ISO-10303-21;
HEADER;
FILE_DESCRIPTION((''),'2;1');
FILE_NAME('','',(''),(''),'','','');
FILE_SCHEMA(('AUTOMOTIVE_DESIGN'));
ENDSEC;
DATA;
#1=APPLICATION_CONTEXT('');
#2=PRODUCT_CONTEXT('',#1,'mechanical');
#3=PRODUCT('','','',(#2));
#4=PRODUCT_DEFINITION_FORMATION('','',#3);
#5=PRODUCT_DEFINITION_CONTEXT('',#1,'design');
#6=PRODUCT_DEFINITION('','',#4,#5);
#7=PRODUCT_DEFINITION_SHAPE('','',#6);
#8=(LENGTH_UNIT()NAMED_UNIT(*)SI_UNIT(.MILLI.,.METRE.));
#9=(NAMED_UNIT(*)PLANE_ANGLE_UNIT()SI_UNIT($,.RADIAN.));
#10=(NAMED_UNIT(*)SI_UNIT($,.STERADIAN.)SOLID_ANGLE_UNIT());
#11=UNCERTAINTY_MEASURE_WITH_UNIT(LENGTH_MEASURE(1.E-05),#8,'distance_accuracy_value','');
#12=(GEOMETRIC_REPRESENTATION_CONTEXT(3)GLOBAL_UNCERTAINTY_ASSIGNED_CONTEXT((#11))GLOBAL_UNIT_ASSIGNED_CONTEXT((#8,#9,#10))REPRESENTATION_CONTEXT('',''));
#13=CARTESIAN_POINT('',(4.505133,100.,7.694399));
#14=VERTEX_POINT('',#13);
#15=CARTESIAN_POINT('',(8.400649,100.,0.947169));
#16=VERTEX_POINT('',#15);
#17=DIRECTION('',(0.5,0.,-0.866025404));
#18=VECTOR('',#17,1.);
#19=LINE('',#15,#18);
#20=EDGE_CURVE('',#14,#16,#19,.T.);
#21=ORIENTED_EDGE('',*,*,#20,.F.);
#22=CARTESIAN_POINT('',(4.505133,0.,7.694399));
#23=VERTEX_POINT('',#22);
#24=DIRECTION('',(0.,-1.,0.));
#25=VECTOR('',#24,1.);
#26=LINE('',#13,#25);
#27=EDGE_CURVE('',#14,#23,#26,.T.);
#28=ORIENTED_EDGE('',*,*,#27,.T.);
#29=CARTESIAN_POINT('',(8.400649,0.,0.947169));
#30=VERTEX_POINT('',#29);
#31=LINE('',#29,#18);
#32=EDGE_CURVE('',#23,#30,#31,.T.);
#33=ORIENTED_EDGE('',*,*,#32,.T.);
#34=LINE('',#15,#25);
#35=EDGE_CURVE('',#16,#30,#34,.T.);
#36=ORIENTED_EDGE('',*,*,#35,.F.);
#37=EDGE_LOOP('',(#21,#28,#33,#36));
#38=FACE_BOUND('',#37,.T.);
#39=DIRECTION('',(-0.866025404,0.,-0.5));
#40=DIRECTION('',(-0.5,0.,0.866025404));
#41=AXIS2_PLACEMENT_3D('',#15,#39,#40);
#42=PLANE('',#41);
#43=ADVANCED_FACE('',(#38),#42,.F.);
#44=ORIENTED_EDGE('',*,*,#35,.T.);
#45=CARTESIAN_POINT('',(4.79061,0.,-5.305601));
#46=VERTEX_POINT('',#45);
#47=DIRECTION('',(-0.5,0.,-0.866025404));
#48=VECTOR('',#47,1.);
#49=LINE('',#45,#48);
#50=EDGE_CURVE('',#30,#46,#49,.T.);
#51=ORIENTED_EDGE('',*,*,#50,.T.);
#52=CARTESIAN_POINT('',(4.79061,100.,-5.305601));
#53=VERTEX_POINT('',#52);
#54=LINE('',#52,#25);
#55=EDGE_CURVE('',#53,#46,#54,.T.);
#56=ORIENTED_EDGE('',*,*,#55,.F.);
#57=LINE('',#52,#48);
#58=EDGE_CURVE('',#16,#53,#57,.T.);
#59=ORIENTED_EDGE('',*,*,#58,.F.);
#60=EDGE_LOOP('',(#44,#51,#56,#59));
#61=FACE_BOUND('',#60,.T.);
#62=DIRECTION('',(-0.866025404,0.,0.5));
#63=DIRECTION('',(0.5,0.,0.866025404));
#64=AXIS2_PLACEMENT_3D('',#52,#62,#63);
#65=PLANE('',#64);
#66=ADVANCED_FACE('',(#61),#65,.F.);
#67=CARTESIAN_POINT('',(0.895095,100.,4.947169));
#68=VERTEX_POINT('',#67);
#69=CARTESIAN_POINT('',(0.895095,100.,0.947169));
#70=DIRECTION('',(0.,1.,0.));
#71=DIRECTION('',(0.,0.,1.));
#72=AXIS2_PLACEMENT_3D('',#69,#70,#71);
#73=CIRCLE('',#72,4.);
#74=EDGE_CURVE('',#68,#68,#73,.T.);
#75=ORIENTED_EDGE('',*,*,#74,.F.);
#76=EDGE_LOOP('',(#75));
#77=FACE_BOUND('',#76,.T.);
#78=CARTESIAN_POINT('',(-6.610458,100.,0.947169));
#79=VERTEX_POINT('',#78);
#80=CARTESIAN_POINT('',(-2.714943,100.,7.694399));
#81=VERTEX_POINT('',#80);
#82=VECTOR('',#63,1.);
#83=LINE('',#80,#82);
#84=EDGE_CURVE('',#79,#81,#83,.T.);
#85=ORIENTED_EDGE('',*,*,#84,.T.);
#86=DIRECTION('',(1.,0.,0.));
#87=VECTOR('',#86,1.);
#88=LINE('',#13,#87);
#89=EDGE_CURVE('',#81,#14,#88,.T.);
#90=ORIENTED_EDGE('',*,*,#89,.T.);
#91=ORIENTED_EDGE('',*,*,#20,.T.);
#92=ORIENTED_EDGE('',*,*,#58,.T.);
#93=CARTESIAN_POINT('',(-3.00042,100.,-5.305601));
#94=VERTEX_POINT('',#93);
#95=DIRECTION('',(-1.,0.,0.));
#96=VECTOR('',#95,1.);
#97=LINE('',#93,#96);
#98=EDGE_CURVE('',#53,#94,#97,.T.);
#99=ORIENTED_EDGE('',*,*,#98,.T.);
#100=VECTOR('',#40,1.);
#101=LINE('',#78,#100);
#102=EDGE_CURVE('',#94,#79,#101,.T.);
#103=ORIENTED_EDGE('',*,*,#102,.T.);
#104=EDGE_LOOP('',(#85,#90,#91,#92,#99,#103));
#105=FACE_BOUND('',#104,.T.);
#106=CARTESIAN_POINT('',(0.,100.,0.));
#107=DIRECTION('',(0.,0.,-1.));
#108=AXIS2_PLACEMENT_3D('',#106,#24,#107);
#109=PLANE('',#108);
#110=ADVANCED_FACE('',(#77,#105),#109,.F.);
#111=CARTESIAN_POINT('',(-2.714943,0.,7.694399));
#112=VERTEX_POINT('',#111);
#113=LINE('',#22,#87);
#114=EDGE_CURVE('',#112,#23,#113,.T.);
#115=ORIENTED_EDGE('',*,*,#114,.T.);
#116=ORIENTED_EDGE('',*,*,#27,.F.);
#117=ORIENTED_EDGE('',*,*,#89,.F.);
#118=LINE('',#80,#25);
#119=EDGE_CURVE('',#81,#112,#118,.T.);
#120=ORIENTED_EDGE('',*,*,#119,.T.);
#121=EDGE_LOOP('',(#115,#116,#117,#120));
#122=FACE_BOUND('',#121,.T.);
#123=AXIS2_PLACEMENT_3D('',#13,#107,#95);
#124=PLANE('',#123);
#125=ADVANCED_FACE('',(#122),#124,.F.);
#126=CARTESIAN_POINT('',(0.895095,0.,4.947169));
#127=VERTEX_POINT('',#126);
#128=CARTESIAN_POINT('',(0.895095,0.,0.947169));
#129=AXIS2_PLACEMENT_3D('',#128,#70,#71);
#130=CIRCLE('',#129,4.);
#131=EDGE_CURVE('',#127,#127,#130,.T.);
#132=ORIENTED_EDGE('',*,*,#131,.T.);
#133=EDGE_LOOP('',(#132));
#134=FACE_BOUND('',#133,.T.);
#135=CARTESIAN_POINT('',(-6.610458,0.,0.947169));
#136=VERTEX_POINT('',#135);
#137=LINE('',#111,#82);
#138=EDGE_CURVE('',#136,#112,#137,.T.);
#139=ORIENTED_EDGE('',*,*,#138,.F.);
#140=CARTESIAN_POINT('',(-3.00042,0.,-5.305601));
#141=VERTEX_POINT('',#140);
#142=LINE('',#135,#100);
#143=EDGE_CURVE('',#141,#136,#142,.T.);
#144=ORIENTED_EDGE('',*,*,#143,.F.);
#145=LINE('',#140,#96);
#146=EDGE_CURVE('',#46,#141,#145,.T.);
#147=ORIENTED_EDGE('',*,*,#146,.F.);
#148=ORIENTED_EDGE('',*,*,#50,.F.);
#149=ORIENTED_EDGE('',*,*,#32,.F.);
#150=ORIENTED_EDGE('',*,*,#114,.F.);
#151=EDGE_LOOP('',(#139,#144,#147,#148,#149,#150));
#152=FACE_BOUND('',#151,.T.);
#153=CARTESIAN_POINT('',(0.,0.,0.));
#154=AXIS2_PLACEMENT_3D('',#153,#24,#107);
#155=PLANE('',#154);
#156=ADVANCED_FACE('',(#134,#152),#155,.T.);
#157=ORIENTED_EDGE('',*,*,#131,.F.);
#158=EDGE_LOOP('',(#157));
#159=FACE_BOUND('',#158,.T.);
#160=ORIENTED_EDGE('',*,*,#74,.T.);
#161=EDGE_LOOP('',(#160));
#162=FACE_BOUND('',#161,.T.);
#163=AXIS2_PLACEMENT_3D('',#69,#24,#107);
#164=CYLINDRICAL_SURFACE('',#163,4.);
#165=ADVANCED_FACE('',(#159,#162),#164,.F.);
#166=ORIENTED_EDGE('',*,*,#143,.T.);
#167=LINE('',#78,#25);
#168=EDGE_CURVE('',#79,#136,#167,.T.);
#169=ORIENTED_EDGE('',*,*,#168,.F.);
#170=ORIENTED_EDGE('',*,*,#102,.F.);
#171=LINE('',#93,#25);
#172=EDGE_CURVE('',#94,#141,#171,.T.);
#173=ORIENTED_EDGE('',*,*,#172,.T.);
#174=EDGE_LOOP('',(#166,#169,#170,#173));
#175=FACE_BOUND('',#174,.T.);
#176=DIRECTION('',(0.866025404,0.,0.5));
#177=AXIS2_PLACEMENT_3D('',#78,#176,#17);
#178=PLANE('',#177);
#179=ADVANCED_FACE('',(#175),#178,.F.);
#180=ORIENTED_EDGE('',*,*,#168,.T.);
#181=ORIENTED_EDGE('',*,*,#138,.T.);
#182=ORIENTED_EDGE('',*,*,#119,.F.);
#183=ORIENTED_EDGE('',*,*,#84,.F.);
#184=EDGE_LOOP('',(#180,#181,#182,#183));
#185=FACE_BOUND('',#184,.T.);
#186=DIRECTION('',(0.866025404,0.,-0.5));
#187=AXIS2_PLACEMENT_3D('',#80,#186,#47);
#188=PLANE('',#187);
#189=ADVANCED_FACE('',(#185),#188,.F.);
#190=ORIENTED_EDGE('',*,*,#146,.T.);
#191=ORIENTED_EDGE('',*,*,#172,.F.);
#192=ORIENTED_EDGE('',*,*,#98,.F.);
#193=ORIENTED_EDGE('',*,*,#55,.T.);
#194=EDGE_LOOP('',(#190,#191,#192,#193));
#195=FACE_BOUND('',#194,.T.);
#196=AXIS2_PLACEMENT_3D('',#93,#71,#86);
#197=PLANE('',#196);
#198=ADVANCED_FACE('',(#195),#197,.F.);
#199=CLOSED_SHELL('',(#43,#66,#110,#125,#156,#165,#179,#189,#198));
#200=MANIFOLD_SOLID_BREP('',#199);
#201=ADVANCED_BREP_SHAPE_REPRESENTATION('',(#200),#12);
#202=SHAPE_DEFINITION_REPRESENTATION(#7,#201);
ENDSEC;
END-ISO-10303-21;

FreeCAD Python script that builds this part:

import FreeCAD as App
import Part
import Sketcher

V = App.Vector
Q = App.Units.Quantity


def add_polygon(sketch, points):
    """Adds a closed chain of lines whose ends are joined by coincident constraints."""
    first, n = sketch.GeometryCount, len(points)
    for a, b in zip(points, points[1:] + points[:1]):
        sketch.addGeometry(Part.LineSegment(App.Vector(*a, 0), App.Vector(*b, 0)), False)
    for i in range(n):
        sketch.addConstraint(Sketcher.Constraint("Coincident", first + i, 2, first + (i + 1) % n, 1))

doc = App.newDocument("Part")
body = doc.addObject("PartDesign::Body", "Body")

# Sketch on XZ plane
sketch1 = body.newObject("Sketcher::SketchObject", "Sketch")
sketch1.AttachmentSupport = (doc.getObject("XZ_Plane"), [""])
sketch1.MapMode = "FlatFace"
add_polygon(sketch1, [(4.8, -5.3), (-3, -5.3), (-6.6, 0.9), (-2.7, 7.7), (4.5, 7.7), (8.4, 0.9)])  # lines 0-5
sketch1.addGeometry(Part.Circle(V(0.9, 0.9, 0), V(0, 0, 1), 4), False)  # 6
sketch1.addConstraint(Sketcher.Constraint("Horizontal", 0))
sketch1.addConstraint(Sketcher.Constraint("Horizontal", 3))
sketch1.addConstraint(Sketcher.Constraint("Parallel", 1, 4))
sketch1.addConstraint(Sketcher.Constraint("Parallel", 2, 5))
sketch1.addConstraint(Sketcher.Constraint("Horizontal", 6, 3, 1, 2))
sketch1.addConstraint(Sketcher.Constraint("Horizontal", 1, 2, 4, 2))
sketch1.addConstraint(Sketcher.Constraint("Equal", 2, 4))
sketch1.addConstraint(Sketcher.Constraint("Diameter", 6, Q("8 mm")))
sketch1.addConstraint(Sketcher.Constraint("Angle", 1, Q("120 deg")))
sketch1.addConstraint(Sketcher.Constraint("DistanceY", 0, 2, 2, 2, Q("13 mm")))
sketch1.addConstraint(Sketcher.Constraint("DistanceX", 0, 2, 0, 1, Q("7.79103 mm")))
sketch1.addConstraint(Sketcher.Constraint("DistanceY", 0, 2, -1, 1, Q("5.305601 mm")))
sketch1.addConstraint(Sketcher.Constraint("Distance", 2, Q("7.79103 mm")))
sketch1.addConstraint(Sketcher.Constraint("DistanceX", 0, 2, -1, 1, Q("3.00042 mm")))
sketch1.addConstraint(Sketcher.Constraint("DistanceX", 2, 2, 6, 3, Q("3.610038 mm")))
pad1 = body.newObject("PartDesign::Pad", "Pad")
pad1.Profile = sketch1
pad1.Length = 100
pad1.Reversed = True

doc.recompute()
